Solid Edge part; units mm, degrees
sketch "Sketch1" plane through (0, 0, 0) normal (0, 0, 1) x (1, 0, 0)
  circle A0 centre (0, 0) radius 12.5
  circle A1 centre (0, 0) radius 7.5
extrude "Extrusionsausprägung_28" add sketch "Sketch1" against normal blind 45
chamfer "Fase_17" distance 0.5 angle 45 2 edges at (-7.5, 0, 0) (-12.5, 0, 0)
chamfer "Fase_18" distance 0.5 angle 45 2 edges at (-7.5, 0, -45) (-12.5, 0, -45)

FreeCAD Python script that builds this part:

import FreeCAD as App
import Part
import Sketcher

V = App.Vector
Q = App.Units.Quantity


def edges_at(feature, points):
    """Names of the edges that pass closest to the given points."""
    edges = feature.Shape.Edges
    near = lambda p: min(range(len(edges)), key=lambda i: edges[i].distToShape(Part.Vertex(*p))[0])
    return sorted({f"Edge{near(p) + 1}" for p in points})

doc = App.newDocument("Part")
body = doc.addObject("PartDesign::Body", "Body")

# Sketch on XY plane
sketch1 = body.newObject("Sketcher::SketchObject", "Sketch")
sketch1.AttachmentSupport = (doc.getObject("XY_Plane"), [""])
sketch1.MapMode = "FlatFace"
sketch1.addGeometry(Part.Circle(V(0, 0, 0), V(0, 0, 1), 12), False)
sketch1.addGeometry(Part.Circle(V(0, 0, 0), V(0, 0, 1), 8), False)
sketch1.addConstraint(Sketcher.Constraint("Coincident", 0, 3, -1, 1))
sketch1.addConstraint(Sketcher.Constraint("Coincident", 1, 3, -1, 1))
sketch1.addConstraint(Sketcher.Constraint("Diameter", 0, Q("25 mm")))
sketch1.addConstraint(Sketcher.Constraint("Diameter", 1, Q("15 mm")))
pad1 = body.newObject("PartDesign::Pad", "Pad")
pad1.Profile = sketch1
pad1.Length = 45
pad1.Reversed = True
doc.recompute()

chamfer = body.newObject("PartDesign::Chamfer", "Chamfer")
chamfer.Base = (pad1, edges_at(pad1, [(-7.5, 0, 0), (-12.5, 0, 0)]))
chamfer.Size = 0.5
doc.recompute()

chamfer2 = body.newObject("PartDesign::Chamfer", "Chamfer001")
chamfer2.Base = (chamfer, edges_at(chamfer, [(-7.5, 0, -45), (-12.5, 0, -45)]))
chamfer2.Size = 0.5

doc.recompute()
